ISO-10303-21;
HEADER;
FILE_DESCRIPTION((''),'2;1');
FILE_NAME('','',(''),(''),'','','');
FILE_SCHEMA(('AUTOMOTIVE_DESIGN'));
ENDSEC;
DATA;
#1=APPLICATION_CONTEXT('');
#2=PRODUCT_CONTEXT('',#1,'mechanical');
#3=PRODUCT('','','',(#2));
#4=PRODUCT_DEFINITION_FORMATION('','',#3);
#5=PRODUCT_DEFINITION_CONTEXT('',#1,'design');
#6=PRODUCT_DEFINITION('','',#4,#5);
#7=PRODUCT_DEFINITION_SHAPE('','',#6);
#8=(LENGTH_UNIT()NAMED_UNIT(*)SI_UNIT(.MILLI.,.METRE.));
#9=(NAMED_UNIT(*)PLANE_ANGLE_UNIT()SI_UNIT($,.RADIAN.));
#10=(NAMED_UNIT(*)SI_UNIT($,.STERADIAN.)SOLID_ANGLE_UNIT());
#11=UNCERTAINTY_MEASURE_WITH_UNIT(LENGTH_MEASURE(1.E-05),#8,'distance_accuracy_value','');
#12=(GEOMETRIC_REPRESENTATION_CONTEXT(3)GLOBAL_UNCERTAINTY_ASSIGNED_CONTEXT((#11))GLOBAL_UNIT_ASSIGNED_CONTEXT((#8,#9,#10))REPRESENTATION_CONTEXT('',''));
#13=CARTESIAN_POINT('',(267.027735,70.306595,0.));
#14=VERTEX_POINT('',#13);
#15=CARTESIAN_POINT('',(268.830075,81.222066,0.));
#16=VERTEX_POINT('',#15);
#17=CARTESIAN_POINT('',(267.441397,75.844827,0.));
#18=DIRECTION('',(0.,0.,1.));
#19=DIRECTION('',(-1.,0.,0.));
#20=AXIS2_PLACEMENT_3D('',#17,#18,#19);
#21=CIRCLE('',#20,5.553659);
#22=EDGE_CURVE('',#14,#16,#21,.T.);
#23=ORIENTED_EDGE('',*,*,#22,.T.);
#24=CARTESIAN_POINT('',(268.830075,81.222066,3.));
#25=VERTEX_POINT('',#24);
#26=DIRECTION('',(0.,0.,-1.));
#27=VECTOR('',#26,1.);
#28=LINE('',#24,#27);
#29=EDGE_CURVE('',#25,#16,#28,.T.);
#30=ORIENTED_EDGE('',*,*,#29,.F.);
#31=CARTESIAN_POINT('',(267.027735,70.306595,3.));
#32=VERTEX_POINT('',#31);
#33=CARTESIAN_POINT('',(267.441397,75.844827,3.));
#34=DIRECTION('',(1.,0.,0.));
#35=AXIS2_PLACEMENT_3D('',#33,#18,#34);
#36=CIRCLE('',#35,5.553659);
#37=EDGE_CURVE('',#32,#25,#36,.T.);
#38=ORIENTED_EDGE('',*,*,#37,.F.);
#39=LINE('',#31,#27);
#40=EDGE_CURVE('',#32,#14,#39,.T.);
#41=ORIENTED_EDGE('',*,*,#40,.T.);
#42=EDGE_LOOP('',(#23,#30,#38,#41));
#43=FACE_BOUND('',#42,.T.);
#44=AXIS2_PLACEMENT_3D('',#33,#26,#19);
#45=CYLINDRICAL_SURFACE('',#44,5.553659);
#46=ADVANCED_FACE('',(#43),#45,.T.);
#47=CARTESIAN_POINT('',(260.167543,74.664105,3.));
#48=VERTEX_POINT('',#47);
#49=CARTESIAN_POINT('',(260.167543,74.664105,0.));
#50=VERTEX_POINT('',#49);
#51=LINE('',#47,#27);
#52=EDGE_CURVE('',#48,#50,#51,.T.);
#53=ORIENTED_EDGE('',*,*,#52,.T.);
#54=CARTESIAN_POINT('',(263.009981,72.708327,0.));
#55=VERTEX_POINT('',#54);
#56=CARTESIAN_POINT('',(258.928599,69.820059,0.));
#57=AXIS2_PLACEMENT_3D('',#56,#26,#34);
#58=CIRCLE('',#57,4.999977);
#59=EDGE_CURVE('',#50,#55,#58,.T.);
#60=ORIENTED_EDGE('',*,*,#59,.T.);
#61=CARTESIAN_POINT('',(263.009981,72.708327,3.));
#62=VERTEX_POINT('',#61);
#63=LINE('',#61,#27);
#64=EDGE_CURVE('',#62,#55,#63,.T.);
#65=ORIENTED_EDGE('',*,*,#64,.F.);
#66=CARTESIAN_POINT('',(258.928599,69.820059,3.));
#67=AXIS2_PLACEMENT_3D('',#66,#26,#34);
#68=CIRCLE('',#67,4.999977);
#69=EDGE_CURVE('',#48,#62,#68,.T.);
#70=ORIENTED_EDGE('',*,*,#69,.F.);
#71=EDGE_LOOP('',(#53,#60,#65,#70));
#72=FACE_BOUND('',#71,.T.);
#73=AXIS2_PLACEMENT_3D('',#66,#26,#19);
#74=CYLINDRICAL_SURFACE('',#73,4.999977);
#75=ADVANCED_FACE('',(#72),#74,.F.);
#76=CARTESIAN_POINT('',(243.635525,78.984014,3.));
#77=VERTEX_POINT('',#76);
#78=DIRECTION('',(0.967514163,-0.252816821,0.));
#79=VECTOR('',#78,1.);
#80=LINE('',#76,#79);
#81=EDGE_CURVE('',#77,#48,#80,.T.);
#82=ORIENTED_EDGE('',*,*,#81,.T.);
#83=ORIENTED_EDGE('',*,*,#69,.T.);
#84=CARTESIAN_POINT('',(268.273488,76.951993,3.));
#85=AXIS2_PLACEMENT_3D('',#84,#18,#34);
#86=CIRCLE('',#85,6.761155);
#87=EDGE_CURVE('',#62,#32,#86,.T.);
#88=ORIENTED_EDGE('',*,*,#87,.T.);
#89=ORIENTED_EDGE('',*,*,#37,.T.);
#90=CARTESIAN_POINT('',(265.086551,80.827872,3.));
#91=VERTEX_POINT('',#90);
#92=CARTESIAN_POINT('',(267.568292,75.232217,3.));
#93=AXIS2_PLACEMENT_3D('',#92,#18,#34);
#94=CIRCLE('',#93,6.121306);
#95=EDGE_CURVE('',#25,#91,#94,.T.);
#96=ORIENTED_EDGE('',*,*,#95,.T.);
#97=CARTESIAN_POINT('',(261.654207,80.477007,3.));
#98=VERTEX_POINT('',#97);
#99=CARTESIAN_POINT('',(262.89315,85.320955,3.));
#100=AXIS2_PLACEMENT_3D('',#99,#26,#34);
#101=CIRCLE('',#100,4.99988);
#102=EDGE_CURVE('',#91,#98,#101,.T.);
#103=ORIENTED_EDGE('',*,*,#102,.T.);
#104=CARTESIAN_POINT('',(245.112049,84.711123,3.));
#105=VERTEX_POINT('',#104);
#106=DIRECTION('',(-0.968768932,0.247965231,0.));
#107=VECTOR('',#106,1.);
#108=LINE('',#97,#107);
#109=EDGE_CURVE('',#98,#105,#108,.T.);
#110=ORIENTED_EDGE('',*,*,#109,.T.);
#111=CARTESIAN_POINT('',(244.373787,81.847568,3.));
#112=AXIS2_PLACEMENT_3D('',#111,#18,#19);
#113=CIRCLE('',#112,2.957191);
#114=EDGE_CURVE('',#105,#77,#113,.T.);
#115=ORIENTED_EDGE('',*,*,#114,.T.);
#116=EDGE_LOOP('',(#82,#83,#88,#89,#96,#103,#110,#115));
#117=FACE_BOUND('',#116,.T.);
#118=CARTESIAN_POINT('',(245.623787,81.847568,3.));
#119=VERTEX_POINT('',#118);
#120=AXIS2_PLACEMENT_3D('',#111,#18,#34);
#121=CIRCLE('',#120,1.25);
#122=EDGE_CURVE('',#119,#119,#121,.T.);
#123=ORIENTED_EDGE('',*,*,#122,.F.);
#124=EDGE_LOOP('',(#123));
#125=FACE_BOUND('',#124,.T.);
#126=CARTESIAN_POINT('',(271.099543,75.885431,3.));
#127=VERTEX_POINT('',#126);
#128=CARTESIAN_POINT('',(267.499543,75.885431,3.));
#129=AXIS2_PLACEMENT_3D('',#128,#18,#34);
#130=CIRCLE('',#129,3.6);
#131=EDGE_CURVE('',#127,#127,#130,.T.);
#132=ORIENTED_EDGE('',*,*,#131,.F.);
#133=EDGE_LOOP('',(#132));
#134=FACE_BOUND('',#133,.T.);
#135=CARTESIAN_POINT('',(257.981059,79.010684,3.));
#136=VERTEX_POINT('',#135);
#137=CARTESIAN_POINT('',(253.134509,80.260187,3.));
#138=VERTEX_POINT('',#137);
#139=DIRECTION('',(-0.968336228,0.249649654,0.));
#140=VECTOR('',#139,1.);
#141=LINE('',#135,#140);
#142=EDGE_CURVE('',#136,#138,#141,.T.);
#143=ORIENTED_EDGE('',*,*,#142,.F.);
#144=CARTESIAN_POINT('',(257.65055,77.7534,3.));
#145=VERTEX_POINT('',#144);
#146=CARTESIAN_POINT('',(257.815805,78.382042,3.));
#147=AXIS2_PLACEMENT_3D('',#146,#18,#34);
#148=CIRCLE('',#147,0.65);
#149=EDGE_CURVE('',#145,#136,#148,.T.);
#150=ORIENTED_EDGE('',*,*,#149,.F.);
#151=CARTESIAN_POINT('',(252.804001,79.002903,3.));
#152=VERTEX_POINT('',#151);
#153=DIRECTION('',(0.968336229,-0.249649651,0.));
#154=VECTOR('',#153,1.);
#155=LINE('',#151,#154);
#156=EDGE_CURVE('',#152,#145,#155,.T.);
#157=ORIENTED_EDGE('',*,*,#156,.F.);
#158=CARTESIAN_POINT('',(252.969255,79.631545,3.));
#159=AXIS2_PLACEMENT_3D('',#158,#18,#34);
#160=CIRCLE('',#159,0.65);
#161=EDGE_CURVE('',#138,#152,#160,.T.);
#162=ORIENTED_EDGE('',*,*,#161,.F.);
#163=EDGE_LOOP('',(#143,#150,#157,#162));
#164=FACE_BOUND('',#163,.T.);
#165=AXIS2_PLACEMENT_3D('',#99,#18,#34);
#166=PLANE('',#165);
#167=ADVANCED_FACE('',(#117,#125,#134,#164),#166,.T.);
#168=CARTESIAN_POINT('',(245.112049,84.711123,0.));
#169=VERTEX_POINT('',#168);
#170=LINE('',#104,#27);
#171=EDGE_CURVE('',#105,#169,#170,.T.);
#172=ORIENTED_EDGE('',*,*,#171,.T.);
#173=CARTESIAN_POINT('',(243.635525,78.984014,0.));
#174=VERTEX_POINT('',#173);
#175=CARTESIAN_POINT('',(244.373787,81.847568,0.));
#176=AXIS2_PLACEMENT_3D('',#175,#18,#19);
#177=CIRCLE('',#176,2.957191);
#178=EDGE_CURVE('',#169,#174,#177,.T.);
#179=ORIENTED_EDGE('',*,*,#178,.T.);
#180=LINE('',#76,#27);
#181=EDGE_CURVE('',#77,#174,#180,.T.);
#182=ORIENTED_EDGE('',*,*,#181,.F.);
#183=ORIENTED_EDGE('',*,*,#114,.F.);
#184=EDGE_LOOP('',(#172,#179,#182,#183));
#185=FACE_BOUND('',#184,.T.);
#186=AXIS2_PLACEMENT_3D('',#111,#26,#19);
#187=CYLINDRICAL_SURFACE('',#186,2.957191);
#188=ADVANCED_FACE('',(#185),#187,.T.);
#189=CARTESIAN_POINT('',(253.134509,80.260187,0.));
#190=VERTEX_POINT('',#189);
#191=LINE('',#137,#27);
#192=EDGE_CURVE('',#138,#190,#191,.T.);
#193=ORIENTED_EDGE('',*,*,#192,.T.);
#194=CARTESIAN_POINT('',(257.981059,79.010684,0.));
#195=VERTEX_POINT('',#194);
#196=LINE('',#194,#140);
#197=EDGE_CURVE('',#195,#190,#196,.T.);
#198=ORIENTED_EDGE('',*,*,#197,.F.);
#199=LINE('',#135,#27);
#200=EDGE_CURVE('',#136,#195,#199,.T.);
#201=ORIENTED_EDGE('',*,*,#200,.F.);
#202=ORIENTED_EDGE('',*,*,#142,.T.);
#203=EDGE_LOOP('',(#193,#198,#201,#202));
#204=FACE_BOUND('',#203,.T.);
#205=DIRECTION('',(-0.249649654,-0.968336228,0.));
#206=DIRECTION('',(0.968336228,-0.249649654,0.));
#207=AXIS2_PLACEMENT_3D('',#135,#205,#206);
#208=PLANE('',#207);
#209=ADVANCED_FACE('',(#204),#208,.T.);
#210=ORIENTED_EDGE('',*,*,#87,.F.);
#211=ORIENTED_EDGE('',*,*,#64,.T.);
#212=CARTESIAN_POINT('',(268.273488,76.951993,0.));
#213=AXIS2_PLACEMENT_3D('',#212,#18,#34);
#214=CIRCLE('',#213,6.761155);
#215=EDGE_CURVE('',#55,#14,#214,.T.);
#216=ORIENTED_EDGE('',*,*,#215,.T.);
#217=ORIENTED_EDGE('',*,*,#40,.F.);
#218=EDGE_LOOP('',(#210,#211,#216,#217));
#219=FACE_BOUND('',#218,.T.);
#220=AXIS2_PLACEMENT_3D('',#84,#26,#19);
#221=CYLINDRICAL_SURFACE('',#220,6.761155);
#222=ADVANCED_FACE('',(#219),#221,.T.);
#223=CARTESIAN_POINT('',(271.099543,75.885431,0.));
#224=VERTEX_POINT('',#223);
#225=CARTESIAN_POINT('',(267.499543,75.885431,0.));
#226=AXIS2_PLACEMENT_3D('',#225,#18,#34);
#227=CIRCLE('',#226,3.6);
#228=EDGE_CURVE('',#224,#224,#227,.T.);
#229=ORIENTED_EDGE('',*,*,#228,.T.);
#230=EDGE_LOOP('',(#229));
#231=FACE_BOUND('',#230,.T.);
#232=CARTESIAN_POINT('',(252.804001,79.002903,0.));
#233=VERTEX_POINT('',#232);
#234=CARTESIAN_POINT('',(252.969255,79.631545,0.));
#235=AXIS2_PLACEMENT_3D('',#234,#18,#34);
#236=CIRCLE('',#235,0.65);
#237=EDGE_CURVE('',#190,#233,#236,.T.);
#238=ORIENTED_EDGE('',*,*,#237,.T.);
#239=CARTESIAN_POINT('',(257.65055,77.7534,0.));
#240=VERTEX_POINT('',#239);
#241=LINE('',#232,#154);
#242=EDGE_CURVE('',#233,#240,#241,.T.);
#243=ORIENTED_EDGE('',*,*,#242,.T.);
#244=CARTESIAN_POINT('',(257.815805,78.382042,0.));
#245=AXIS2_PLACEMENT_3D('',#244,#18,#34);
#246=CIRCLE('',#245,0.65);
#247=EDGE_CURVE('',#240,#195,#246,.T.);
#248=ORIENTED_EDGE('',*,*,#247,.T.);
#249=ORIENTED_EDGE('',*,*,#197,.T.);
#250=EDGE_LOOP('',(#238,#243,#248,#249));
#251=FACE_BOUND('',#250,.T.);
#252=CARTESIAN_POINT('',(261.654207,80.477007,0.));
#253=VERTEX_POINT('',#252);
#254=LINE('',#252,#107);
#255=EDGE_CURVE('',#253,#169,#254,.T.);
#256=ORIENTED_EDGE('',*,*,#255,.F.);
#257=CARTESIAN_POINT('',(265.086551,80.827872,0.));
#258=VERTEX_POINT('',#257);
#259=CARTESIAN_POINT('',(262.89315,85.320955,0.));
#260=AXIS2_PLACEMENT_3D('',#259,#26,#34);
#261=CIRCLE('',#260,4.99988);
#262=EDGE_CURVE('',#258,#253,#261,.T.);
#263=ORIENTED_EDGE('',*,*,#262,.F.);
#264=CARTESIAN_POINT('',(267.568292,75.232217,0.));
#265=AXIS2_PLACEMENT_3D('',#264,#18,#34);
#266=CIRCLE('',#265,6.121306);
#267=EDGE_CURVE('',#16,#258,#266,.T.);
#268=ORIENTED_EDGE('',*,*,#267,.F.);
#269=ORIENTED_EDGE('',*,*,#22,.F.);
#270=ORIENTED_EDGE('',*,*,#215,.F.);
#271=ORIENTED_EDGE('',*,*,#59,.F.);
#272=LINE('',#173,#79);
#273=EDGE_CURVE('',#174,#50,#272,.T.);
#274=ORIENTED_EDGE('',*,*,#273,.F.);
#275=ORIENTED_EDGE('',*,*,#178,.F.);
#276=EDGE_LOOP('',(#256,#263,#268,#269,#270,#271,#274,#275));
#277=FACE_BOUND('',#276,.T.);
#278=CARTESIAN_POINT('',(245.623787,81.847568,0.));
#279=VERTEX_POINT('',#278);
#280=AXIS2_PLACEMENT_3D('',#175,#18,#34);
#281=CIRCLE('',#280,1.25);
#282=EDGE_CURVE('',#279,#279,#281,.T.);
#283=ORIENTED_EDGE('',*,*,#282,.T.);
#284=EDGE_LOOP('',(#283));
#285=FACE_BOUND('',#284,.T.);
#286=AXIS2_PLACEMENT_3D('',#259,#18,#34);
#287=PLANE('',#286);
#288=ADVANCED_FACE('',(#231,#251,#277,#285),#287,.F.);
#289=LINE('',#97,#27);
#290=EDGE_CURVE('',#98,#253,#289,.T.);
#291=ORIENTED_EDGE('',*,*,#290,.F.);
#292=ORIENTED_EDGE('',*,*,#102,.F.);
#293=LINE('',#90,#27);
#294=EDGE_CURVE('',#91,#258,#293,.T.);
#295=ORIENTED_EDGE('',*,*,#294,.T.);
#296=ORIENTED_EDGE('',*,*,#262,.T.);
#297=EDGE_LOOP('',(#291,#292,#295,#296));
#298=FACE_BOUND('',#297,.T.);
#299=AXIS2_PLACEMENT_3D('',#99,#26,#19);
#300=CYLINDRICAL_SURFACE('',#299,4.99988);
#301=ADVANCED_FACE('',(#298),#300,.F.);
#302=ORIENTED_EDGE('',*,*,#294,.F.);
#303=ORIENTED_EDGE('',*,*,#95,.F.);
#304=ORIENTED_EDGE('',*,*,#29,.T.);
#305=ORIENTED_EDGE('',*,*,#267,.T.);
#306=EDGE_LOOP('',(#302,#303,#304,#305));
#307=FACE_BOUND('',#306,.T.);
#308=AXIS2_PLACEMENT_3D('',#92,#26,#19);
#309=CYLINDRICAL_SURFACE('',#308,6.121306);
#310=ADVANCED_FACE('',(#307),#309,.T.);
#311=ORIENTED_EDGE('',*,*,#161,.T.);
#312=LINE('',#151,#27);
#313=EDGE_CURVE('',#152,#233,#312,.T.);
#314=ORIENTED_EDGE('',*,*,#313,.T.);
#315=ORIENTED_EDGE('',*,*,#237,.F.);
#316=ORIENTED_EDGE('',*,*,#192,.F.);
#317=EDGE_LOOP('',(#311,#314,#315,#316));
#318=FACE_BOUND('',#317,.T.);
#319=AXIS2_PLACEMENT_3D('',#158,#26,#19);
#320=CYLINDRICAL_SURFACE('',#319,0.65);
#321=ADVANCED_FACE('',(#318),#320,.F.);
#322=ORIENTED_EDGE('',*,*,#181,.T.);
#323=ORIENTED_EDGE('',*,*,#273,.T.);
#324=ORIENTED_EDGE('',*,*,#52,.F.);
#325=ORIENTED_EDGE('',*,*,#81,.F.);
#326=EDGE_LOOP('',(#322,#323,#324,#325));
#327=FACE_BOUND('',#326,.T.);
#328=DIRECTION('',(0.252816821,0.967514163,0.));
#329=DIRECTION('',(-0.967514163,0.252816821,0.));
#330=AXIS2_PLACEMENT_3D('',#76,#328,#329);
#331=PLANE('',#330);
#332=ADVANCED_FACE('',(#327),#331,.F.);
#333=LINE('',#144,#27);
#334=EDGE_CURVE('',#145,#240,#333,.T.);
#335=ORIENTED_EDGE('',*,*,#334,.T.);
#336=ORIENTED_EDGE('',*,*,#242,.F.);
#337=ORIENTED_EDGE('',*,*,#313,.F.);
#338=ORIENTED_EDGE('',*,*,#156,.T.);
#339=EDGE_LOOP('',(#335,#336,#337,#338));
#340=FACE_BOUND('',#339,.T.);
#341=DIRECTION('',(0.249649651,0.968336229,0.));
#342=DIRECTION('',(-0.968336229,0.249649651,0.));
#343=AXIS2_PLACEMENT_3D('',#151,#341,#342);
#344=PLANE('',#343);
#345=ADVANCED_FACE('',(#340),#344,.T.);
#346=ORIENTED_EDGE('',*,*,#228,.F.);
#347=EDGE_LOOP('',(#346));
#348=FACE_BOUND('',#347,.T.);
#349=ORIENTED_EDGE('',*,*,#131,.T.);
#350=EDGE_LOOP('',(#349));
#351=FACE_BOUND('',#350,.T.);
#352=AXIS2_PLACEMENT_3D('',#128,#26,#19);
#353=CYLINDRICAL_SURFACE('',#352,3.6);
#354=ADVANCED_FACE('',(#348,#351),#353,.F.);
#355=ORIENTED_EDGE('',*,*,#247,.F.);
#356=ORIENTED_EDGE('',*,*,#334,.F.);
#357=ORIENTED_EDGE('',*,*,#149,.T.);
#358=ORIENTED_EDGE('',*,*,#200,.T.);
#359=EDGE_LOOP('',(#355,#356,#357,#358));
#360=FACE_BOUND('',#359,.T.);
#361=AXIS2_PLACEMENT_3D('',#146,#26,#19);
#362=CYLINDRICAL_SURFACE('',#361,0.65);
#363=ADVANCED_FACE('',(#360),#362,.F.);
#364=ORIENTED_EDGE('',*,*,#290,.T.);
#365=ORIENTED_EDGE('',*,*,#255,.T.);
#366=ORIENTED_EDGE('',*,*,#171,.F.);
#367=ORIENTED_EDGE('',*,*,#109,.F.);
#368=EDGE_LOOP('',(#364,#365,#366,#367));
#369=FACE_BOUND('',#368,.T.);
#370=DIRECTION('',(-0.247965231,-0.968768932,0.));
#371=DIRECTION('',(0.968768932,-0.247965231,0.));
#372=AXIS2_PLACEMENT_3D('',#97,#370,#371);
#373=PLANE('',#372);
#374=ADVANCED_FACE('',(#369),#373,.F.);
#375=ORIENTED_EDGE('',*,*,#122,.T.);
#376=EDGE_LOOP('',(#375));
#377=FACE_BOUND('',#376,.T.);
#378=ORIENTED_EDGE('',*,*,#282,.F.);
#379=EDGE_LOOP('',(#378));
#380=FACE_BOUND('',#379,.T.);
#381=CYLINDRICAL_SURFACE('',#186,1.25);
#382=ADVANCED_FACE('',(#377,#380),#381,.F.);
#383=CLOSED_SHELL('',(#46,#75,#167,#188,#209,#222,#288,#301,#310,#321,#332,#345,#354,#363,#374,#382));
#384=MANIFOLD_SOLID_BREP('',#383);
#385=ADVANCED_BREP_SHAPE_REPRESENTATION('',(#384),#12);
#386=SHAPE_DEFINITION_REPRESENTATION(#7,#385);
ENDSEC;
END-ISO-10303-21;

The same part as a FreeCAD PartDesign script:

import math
import FreeCAD as App
import Part
import Sketcher
from FreeCAD import Vector
Q = App.Units.Quantity

doc = App.newDocument("Part")
params = doc.addObject("Spreadsheet::Sheet", "Params")
for row, (alias, value) in enumerate([
    ("sketch1_diameter", "7.2 mm"),
    ("sketch1_diameter2", "2.5 mm"),
    ("sketch1_radius", "0.65 mm"),
    ("pad1_length", "3 mm"),
], start=1):
    params.set(f"A{row}", alias)
    params.set(f"B{row}", "=" + value)
    params.setAlias(f"B{row}", alias)

body = doc.addObject("PartDesign::Body", "Body")

# Sketch on XY plane
sketch1 = doc.addObject("Sketcher::SketchObject", "Sketch")
body.addObject(sketch1)
sketch1.AttachmentSupport = (doc.XY_Plane, [""])
sketch1.MapMode = "FlatFace"
sketch1.addGeometry([
    Part.LineSegment(Vector(243.635525, 78.984014, 0), Vector(260.167543, 74.664105, 0)),  # 0
    Part.ArcOfCircle(Part.Circle(Vector(258.928599, 69.820059, 0), Vector(0, 0, 1), 4.999977), math.radians(35.285864), math.radians(75.65323)),  # 1
    Part.ArcOfCircle(Part.Circle(Vector(268.273488, 76.951993, 0), Vector(0, 0, 1), 6.761155), math.radians(-141.122745), math.radians(-100.617499)),  # 2
    Part.ArcOfCircle(Part.Circle(Vector(267.441397, 75.844827, 0), Vector(0, 0, 1), 5.553659), math.radians(-94.271607), math.radians(-81.023624)),  # 3
    Part.ArcOfCircle(Part.Circle(Vector(267.441397, 75.844827, 0), Vector(0, 0, 1), 5.553659), math.radians(-81.023623), math.radians(5.158381)),  # 4
    Part.ArcOfCircle(Part.Circle(Vector(267.441397, 75.844827, 0), Vector(0, 0, 1), 5.553659), math.radians(5.158381), math.radians(75.519679)),  # 5
    Part.ArcOfCircle(Part.Circle(Vector(267.568292, 75.232217, 0), Vector(0, 0, 1), 6.121306), math.radians(78.104357), math.radians(113.917869)),  # 6
    Part.ArcOfCircle(Part.Circle(Vector(262.89315, 85.320955, 0), Vector(0, 0, 1), 4.99988), math.radians(-104.347037), math.radians(-63.979626)),  # 7
    Part.LineSegment(Vector(261.654207, 80.477007, 0), Vector(245.112049, 84.711123, 0)),  # 8
    Part.ArcOfCircle(Part.Circle(Vector(244.373787, 81.847568, 0), Vector(0, 0, 1), 2.957191), math.radians(75.543218), math.radians(255.543205)),  # 9
    Part.Circle(Vector(267.499543, 75.885431, 0), Vector(0, 0, 1), 3.6),  # 10
    Part.LineSegment(Vector(253.134509, 80.260187, 0), Vector(257.981059, 79.010684, 0)),  # 11
    Part.ArcOfCircle(Part.Circle(Vector(257.815805, 78.382042, 0), Vector(0, 0, 1), 0.65), math.radians(-104.728431), math.radians(75.271569)),  # 12
    Part.LineSegment(Vector(257.65055, 77.7534, 0), Vector(252.804001, 79.002903, 0)),  # 13
    Part.ArcOfCircle(Part.Circle(Vector(252.969255, 79.631545, 0), Vector(0, 0, 1), 0.65), math.radians(75.27165), math.radians(255.27165)),  # 14
    Part.Circle(Vector(244.373787, 81.847568, 0), Vector(0, 0, 1), 1.25),  # 15
], False)
sketch1.addConstraint([
    Sketcher.Constraint("Coincident", 0, 2, 1, 2),
    Sketcher.Constraint("Coincident", 1, 1, 2, 1),
    Sketcher.Constraint("Coincident", 2, 2, 3, 1),
    Sketcher.Constraint("Tangent", 3, 2, 4, 1),
    Sketcher.Constraint("Tangent", 4, 2, 5, 1),
    Sketcher.Constraint("Coincident", 5, 2, 6, 1),
    Sketcher.Constraint("Coincident", 6, 2, 7, 2),
    Sketcher.Constraint("Coincident", 7, 1, 8, 1),
    Sketcher.Constraint("Coincident", 8, 2, 9, 1),
    Sketcher.Constraint("Coincident", 9, 2, 0, 1),
    Sketcher.Constraint("Coincident", 11, 2, 12, 2),
    Sketcher.Constraint("Coincident", 12, 1, 13, 1),
    Sketcher.Constraint("Coincident", 13, 2, 14, 2),
    Sketcher.Constraint("Coincident", 14, 1, 11, 1),
    Sketcher.Constraint("Coincident", 5, 3, 3, 3),
    Sketcher.Constraint("Coincident", 15, 3, 9, 3),
    Sketcher.Constraint("Equal", 12, 14),
    Sketcher.Constraint("Parallel", 11, 13),
    Sketcher.Constraint("Diameter", 10, Q("7.2 mm")),
    Sketcher.Constraint("Diameter", 15, Q("2.5 mm")),
    Sketcher.Constraint("Radius", 12, Q("0.65 mm")),
    Sketcher.Constraint("Radius", 3, Q("5.553659 mm")),
    Sketcher.Constraint("Radius", 7, Q("4.99988 mm")),
    Sketcher.Constraint("Radius", 9, Q("2.957191 mm")),
    Sketcher.Constraint("DistanceX", -1, 1, 13, 2, Q("252.804001 mm")),
    Sketcher.Constraint("Radius", 1, Q("4.999977 mm")),
    Sketcher.Constraint("Radius", 2, Q("6.761155 mm")),
    Sketcher.Constraint("Radius", 6, Q("6.121306 mm")),
    Sketcher.Constraint("DistanceX", -1, 1, 1, 3, Q("258.928599 mm")),
    Sketcher.Constraint("DistanceY", -1, 1, 12, 1, Q("77.7534 mm")),
    Sketcher.Constraint("DistanceX", 1, 3, 3, 3, Q("8.512798 mm")),
    Sketcher.Constraint("DistanceY", 1, 1, 4, 3, Q("3.1365 mm")),
    Sketcher.Constraint("DistanceX", 7, 3, 6, 2, Q("2.193401 mm")),
    Sketcher.Constraint("Distance", 11, Q("5.005029 mm")),
    Sketcher.Constraint("DistanceY", -1, 1, 1, 3, Q("69.820059 mm")),
    Sketcher.Constraint("DistanceX", -1, 1, 2, 3, Q("268.273488 mm")),
    Sketcher.Constraint("DistanceX", -1, 1, 6, 3, Q("267.568292 mm")),
    Sketcher.Constraint("DistanceX", -1, 1, 7, 3, Q("262.89315 mm")),
    Sketcher.Constraint("DistanceY", -1, 1, 9, 3, Q("81.847568 mm")),
    Sketcher.Constraint("DistanceY", -1, 1, 10, 3, Q("75.885431 mm")),
    Sketcher.Constraint("DistanceY", -1, 1, 12, 3, Q("78.382042 mm")),
    Sketcher.Constraint("DistanceX", -1, 1, 1, 1, Q("263.009981 mm")),
    Sketcher.Constraint("DistanceX", -1, 1, 3, 2, Q("268.307919 mm")),
    Sketcher.Constraint("DistanceY", -1, 1, 4, 2, Q("76.344152 mm")),
    Sketcher.Constraint("DistanceY", -1, 1, 6, 2, Q("80.827872 mm")),
    Sketcher.Constraint("DistanceX", -1, 1, 8, 2, Q("245.112049 mm")),
    Sketcher.Constraint("DistanceX", -1, 1, 11, 2, Q("257.981059 mm")),
    Sketcher.Constraint("DistanceX", -1, 1, 12, 1, Q("257.65055 mm")),
    Sketcher.Constraint("DistanceX", 9, 3, 1, 3, Q("14.554812 mm")),
    Sketcher.Constraint("DistanceX", 10, 3, 6, 3, Q("0.068749 mm")),
    Sketcher.Constraint("DistanceX", 14, 3, 12, 3, Q("4.84655 mm")),
    Sketcher.Constraint("DistanceX", 12, 3, 0, 2, Q("2.351738 mm")),
    Sketcher.Constraint("DistanceX", 7, 1, 5, 2, Q("7.175868 mm")),
    Sketcher.Constraint("DistanceY", 9, 2, 8, 2, Q("5.72711 mm")),
])
sketch1.setExpression("Constraints[18]", "Params.sketch1_diameter")
sketch1.setExpression("Constraints[19]", "Params.sketch1_diameter2")
sketch1.setExpression("Constraints[20]", "Params.sketch1_radius")
pad1 = doc.addObject("PartDesign::Pad", "Pad")
body.addObject(pad1)
pad1.Profile = sketch1
pad1.setExpression("Length", "Params.pad1_length")

doc.recompute()
